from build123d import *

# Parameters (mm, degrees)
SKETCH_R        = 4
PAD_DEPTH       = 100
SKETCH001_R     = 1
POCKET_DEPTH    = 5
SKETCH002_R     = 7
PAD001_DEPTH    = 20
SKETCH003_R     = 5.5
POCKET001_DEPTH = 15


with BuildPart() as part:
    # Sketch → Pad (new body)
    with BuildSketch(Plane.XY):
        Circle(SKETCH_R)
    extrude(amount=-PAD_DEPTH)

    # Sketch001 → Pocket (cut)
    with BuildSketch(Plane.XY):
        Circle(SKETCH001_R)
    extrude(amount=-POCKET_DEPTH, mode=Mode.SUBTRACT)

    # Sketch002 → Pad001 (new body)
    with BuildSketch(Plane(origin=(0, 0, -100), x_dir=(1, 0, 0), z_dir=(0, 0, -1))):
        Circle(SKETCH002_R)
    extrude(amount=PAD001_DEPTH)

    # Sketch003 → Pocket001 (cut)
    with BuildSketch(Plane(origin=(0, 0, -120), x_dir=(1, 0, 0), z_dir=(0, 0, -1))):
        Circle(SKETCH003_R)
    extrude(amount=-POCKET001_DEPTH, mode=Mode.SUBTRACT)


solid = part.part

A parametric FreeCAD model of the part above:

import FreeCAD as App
import Part
import Sketcher
from FreeCAD import Vector
Q = App.Units.Quantity

doc = App.newDocument("Part")
body = doc.addObject("PartDesign::Body", "Body")

sketch1 = doc.addObject("Sketcher::SketchObject", "Sketch")
body.addObject(sketch1)
sketch1.AttachmentSupport = (doc.XY_Plane, [""])
sketch1.MapMode = "FlatFace"
sketch1.addGeometry(Part.Circle(Vector(0, 0, 0), Vector(0, 0, 1), 4), False)
sketch1.addConstraint(Sketcher.Constraint("Coincident", 0, 3, -1, 1))
sketch1.addConstraint(Sketcher.Constraint("Diameter", 0, Q("8 mm")))
pad1 = doc.addObject("PartDesign::Pad", "Pad")
body.addObject(pad1)
pad1.Profile = sketch1
pad1.Length = 100
pad1.Reversed = True

sketch2 = doc.addObject("Sketcher::SketchObject", "Sketch001")
body.addObject(sketch2)
sketch2.AttachmentSupport = (doc.XY_Plane, [""])
sketch2.MapMode = "FlatFace"
sketch2.addGeometry(Part.Circle(Vector(0, 0, 0), Vector(0, 0, 1), 1), False)
sketch2.addConstraint(Sketcher.Constraint("Coincident", 0, 3, -1, 1))
sketch2.addConstraint(Sketcher.Constraint("Diameter", 0, Q("2 mm")))
pocket1 = doc.addObject("PartDesign::Pocket", "Pocket")
body.addObject(pocket1)
pocket1.Profile = sketch2
pocket1.Length = 5

sketch3 = doc.addObject("Sketcher::SketchObject", "Sketch002")
body.addObject(sketch3)
sketch3.AttachmentSupport = (doc.XY_Plane, [""])
sketch3.MapMode = "FlatFace"
sketch3.AttachmentOffset = App.Placement(Vector(0, 0, -100), App.Rotation())
sketch3.addGeometry(Part.Circle(Vector(0, 0, 0), Vector(0, 0, 1), 7), False)
sketch3.addConstraint(Sketcher.Constraint("Coincident", 0, 3, -1, 1))
sketch3.addConstraint(Sketcher.Constraint("Diameter", 0, Q("14 mm")))
pad2 = doc.addObject("PartDesign::Pad", "Pad001")
body.addObject(pad2)
pad2.Profile = sketch3
pad2.Length = 20
pad2.Reversed = True

sketch4 = doc.addObject("Sketcher::SketchObject", "Sketch003")
body.addObject(sketch4)
sketch4.AttachmentSupport = (doc.XY_Plane, [""])
sketch4.MapMode = "FlatFace"
sketch4.AttachmentOffset = App.Placement(Vector(0, 0, -120), App.Rotation())
sketch4.addGeometry(Part.Circle(Vector(0, 0, 0), Vector(0, 0, 1), 6), False)
sketch4.addConstraint(Sketcher.Constraint("Coincident", 0, 3, -1, 1))
sketch4.addConstraint(Sketcher.Constraint("Diameter", 0, Q("11 mm")))
pocket2 = doc.addObject("PartDesign::Pocket", "Pocket001")
body.addObject(pocket2)
pocket2.Profile = sketch4
pocket2.Length = 15
pocket2.Reversed = True

doc.recompute()
